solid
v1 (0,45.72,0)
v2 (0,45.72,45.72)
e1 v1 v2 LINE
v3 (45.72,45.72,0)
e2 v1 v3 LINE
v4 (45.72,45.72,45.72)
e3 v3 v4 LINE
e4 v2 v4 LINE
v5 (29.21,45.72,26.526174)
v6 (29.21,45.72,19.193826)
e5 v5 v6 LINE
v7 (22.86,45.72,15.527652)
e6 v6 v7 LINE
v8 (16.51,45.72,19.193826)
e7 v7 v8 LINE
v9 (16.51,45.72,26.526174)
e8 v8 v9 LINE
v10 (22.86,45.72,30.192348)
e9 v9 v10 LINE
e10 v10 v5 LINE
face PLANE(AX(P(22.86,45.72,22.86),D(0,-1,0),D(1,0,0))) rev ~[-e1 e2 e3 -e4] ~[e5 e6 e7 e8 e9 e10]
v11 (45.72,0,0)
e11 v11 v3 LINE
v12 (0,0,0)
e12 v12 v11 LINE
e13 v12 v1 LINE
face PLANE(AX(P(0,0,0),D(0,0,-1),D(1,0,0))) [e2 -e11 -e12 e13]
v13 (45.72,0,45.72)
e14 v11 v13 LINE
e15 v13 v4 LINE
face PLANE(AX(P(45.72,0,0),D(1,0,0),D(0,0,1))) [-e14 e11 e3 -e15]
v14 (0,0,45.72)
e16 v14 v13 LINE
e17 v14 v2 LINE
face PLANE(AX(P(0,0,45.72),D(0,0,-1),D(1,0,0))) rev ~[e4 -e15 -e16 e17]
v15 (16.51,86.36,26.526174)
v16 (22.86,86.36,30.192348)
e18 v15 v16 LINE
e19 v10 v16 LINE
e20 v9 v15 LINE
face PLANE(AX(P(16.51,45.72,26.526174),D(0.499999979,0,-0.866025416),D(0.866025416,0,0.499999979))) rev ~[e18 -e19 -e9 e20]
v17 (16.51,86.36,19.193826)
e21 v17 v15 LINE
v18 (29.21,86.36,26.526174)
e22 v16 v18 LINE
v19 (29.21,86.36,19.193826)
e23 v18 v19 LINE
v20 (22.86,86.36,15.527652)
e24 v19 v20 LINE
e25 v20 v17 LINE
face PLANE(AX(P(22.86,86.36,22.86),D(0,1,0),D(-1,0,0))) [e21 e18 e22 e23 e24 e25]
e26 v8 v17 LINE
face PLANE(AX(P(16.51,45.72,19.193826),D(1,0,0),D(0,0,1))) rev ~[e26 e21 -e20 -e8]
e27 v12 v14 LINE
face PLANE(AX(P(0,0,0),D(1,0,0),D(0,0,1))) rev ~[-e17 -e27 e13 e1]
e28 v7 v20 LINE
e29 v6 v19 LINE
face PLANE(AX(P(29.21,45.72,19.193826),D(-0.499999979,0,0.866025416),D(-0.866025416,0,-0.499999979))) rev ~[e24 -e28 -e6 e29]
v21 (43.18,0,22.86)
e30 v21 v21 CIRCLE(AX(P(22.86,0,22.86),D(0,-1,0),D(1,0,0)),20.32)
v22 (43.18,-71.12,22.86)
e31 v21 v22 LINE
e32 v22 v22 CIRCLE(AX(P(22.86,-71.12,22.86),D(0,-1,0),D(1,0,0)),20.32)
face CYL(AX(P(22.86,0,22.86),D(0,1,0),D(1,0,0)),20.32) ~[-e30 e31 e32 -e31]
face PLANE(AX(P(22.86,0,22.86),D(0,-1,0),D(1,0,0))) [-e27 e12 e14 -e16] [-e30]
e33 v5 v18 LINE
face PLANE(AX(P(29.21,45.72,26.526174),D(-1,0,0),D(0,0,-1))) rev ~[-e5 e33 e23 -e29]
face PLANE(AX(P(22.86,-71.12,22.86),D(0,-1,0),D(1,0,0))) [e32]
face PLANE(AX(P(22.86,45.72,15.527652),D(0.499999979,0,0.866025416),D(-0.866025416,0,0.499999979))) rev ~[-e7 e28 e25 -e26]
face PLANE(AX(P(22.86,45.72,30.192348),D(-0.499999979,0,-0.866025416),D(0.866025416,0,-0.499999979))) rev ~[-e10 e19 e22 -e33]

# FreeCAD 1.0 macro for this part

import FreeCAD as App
import Part
import Sketcher
from FreeCAD import Vector
Q = App.Units.Quantity

doc = App.newDocument("Part")
body = doc.addObject("PartDesign::Body", "Body")

# Sketch on XZ plane
sketch1 = body.newObject("Sketcher::SketchObject", "Sketch")
sketch1.AttachmentSupport = (doc.getObject("XZ_Plane"), [""])
sketch1.MapMode = "FlatFace"
sketch1.addGeometry([
    Part.LineSegment(Vector(0, 45.72, 0), Vector(0, 0, 0)),
    Part.LineSegment(Vector(0, 0, 0), Vector(45.72, 0, 0)),
    Part.LineSegment(Vector(45.72, 0, 0), Vector(45.72, 45.72, 0)),
    Part.LineSegment(Vector(45.72, 45.72, 0), Vector(0, 45.72, 0)),
], False)
sketch1.addConstraint([
    Sketcher.Constraint("Coincident", 0, 2, 1, 1),
    Sketcher.Constraint("Coincident", 1, 2, 2, 1),
    Sketcher.Constraint("Coincident", 2, 2, 3, 1),
    Sketcher.Constraint("Coincident", 3, 2, 0, 1),
    Sketcher.Constraint("Vertical", 0),
    Sketcher.Constraint("Horizontal", 1),
    Sketcher.Constraint("Vertical", 2),
    Sketcher.Constraint("Horizontal", 3),
    Sketcher.Constraint("Coincident", 0, 2, -1, 1),
    Sketcher.Constraint("Equal", 3, 0),
    Sketcher.Constraint("DistanceX", 1, 1, 1, 2, Q("1.8 in")),
])
pad1 = body.newObject("PartDesign::Pad", "Pad")
pad1.Profile = sketch1
pad1.Length = Q("1.8 in")
pad1.Reversed = True

# Sketch on XZ plane
sketch2 = body.newObject("Sketcher::SketchObject", "Sketch001")
sketch2.AttachmentSupport = (doc.getObject("XZ_Plane"), [""])
sketch2.MapMode = "FlatFace"
sketch2.addGeometry(Part.Circle(Vector(22.86, 22.86, 0), Vector(0, 0, 1), 20.32), False)
sketch2.addConstraint([
    Sketcher.Constraint("Diameter", 0, Q("1.6 in")),
    Sketcher.Constraint("DistanceX", -1, 1, 0, 3, Q("0.9 in")),
    Sketcher.Constraint("DistanceY", -1, 1, 0, 3, Q("0.9 in")),
])
pad2 = body.newObject("PartDesign::Pad", "Pad001")
pad2.Profile = sketch2
pad2.Length = Q("2.8 in")

# Sketch on XZ plane
sketch3 = body.newObject("Sketcher::SketchObject", "Sketch002")
sketch3.AttachmentSupport = (doc.getObject("XZ_Plane"), [""])
sketch3.MapMode = "FlatFace"
sketch3.AttachmentOffset = App.Placement(Vector(0, 0, -1.8 * 25.4), App.Rotation())
sketch3.addGeometry([
    Part.LineSegment(Vector(16.51, 19.193826, 0), Vector(16.51, 26.526174, 0)),  # 0
    Part.LineSegment(Vector(16.51, 26.526174, 0), Vector(22.86, 30.192348, 0)),  # 1
    Part.LineSegment(Vector(22.86, 30.192348, 0), Vector(29.21, 26.526174, 0)),  # 2
    Part.LineSegment(Vector(29.21, 26.526174, 0), Vector(29.21, 19.193826, 0)),  # 3
    Part.LineSegment(Vector(29.21, 19.193826, 0), Vector(22.86, 15.527652, 0)),  # 4
    Part.LineSegment(Vector(22.86, 15.527652, 0), Vector(16.51, 19.193826, 0)),  # 5
], False)
sketch3.addConstraint([
    Sketcher.Constraint("Coincident", 0, 2, 1, 1),
    Sketcher.Constraint("Coincident", 1, 2, 2, 1),
    Sketcher.Constraint("Coincident", 2, 2, 3, 1),
    Sketcher.Constraint("Coincident", 3, 2, 4, 1),
    Sketcher.Constraint("Coincident", 4, 2, 5, 1),
    Sketcher.Constraint("Coincident", 5, 2, 0, 1),
    Sketcher.Constraint("Vertical", 0),
    Sketcher.Constraint("Vertical", 3),
    Sketcher.Constraint("Parallel", 1, 4),
    Sketcher.Constraint("Parallel", 2, 5),
    Sketcher.Constraint("Horizontal", 0, 2, 2, 2),
    Sketcher.Constraint("Horizontal", 3, 2, 5, 2),
    Sketcher.Constraint("Vertical", 1, 2, 4, 2),
    Sketcher.Constraint("Angle", 1, Q("29.999999 deg")),
    Sketcher.Constraint("DistanceX", -1, 1, 1, 2, Q("0.9 in")),
    Sketcher.Constraint("DistanceX", 0, 2, 2, 2, Q("0.5 in")),
    Sketcher.Constraint("DistanceY", 0, 1, 0, 2, 7.332348),
    Sketcher.Constraint("DistanceY", -1, 1, 0, 2, 26.526174),
])
pad3 = body.newObject("PartDesign::Pad", "Pad002")
pad3.Profile = sketch3
pad3.Length = Q("1.6 in")
pad3.Reversed = True

doc.recompute()
